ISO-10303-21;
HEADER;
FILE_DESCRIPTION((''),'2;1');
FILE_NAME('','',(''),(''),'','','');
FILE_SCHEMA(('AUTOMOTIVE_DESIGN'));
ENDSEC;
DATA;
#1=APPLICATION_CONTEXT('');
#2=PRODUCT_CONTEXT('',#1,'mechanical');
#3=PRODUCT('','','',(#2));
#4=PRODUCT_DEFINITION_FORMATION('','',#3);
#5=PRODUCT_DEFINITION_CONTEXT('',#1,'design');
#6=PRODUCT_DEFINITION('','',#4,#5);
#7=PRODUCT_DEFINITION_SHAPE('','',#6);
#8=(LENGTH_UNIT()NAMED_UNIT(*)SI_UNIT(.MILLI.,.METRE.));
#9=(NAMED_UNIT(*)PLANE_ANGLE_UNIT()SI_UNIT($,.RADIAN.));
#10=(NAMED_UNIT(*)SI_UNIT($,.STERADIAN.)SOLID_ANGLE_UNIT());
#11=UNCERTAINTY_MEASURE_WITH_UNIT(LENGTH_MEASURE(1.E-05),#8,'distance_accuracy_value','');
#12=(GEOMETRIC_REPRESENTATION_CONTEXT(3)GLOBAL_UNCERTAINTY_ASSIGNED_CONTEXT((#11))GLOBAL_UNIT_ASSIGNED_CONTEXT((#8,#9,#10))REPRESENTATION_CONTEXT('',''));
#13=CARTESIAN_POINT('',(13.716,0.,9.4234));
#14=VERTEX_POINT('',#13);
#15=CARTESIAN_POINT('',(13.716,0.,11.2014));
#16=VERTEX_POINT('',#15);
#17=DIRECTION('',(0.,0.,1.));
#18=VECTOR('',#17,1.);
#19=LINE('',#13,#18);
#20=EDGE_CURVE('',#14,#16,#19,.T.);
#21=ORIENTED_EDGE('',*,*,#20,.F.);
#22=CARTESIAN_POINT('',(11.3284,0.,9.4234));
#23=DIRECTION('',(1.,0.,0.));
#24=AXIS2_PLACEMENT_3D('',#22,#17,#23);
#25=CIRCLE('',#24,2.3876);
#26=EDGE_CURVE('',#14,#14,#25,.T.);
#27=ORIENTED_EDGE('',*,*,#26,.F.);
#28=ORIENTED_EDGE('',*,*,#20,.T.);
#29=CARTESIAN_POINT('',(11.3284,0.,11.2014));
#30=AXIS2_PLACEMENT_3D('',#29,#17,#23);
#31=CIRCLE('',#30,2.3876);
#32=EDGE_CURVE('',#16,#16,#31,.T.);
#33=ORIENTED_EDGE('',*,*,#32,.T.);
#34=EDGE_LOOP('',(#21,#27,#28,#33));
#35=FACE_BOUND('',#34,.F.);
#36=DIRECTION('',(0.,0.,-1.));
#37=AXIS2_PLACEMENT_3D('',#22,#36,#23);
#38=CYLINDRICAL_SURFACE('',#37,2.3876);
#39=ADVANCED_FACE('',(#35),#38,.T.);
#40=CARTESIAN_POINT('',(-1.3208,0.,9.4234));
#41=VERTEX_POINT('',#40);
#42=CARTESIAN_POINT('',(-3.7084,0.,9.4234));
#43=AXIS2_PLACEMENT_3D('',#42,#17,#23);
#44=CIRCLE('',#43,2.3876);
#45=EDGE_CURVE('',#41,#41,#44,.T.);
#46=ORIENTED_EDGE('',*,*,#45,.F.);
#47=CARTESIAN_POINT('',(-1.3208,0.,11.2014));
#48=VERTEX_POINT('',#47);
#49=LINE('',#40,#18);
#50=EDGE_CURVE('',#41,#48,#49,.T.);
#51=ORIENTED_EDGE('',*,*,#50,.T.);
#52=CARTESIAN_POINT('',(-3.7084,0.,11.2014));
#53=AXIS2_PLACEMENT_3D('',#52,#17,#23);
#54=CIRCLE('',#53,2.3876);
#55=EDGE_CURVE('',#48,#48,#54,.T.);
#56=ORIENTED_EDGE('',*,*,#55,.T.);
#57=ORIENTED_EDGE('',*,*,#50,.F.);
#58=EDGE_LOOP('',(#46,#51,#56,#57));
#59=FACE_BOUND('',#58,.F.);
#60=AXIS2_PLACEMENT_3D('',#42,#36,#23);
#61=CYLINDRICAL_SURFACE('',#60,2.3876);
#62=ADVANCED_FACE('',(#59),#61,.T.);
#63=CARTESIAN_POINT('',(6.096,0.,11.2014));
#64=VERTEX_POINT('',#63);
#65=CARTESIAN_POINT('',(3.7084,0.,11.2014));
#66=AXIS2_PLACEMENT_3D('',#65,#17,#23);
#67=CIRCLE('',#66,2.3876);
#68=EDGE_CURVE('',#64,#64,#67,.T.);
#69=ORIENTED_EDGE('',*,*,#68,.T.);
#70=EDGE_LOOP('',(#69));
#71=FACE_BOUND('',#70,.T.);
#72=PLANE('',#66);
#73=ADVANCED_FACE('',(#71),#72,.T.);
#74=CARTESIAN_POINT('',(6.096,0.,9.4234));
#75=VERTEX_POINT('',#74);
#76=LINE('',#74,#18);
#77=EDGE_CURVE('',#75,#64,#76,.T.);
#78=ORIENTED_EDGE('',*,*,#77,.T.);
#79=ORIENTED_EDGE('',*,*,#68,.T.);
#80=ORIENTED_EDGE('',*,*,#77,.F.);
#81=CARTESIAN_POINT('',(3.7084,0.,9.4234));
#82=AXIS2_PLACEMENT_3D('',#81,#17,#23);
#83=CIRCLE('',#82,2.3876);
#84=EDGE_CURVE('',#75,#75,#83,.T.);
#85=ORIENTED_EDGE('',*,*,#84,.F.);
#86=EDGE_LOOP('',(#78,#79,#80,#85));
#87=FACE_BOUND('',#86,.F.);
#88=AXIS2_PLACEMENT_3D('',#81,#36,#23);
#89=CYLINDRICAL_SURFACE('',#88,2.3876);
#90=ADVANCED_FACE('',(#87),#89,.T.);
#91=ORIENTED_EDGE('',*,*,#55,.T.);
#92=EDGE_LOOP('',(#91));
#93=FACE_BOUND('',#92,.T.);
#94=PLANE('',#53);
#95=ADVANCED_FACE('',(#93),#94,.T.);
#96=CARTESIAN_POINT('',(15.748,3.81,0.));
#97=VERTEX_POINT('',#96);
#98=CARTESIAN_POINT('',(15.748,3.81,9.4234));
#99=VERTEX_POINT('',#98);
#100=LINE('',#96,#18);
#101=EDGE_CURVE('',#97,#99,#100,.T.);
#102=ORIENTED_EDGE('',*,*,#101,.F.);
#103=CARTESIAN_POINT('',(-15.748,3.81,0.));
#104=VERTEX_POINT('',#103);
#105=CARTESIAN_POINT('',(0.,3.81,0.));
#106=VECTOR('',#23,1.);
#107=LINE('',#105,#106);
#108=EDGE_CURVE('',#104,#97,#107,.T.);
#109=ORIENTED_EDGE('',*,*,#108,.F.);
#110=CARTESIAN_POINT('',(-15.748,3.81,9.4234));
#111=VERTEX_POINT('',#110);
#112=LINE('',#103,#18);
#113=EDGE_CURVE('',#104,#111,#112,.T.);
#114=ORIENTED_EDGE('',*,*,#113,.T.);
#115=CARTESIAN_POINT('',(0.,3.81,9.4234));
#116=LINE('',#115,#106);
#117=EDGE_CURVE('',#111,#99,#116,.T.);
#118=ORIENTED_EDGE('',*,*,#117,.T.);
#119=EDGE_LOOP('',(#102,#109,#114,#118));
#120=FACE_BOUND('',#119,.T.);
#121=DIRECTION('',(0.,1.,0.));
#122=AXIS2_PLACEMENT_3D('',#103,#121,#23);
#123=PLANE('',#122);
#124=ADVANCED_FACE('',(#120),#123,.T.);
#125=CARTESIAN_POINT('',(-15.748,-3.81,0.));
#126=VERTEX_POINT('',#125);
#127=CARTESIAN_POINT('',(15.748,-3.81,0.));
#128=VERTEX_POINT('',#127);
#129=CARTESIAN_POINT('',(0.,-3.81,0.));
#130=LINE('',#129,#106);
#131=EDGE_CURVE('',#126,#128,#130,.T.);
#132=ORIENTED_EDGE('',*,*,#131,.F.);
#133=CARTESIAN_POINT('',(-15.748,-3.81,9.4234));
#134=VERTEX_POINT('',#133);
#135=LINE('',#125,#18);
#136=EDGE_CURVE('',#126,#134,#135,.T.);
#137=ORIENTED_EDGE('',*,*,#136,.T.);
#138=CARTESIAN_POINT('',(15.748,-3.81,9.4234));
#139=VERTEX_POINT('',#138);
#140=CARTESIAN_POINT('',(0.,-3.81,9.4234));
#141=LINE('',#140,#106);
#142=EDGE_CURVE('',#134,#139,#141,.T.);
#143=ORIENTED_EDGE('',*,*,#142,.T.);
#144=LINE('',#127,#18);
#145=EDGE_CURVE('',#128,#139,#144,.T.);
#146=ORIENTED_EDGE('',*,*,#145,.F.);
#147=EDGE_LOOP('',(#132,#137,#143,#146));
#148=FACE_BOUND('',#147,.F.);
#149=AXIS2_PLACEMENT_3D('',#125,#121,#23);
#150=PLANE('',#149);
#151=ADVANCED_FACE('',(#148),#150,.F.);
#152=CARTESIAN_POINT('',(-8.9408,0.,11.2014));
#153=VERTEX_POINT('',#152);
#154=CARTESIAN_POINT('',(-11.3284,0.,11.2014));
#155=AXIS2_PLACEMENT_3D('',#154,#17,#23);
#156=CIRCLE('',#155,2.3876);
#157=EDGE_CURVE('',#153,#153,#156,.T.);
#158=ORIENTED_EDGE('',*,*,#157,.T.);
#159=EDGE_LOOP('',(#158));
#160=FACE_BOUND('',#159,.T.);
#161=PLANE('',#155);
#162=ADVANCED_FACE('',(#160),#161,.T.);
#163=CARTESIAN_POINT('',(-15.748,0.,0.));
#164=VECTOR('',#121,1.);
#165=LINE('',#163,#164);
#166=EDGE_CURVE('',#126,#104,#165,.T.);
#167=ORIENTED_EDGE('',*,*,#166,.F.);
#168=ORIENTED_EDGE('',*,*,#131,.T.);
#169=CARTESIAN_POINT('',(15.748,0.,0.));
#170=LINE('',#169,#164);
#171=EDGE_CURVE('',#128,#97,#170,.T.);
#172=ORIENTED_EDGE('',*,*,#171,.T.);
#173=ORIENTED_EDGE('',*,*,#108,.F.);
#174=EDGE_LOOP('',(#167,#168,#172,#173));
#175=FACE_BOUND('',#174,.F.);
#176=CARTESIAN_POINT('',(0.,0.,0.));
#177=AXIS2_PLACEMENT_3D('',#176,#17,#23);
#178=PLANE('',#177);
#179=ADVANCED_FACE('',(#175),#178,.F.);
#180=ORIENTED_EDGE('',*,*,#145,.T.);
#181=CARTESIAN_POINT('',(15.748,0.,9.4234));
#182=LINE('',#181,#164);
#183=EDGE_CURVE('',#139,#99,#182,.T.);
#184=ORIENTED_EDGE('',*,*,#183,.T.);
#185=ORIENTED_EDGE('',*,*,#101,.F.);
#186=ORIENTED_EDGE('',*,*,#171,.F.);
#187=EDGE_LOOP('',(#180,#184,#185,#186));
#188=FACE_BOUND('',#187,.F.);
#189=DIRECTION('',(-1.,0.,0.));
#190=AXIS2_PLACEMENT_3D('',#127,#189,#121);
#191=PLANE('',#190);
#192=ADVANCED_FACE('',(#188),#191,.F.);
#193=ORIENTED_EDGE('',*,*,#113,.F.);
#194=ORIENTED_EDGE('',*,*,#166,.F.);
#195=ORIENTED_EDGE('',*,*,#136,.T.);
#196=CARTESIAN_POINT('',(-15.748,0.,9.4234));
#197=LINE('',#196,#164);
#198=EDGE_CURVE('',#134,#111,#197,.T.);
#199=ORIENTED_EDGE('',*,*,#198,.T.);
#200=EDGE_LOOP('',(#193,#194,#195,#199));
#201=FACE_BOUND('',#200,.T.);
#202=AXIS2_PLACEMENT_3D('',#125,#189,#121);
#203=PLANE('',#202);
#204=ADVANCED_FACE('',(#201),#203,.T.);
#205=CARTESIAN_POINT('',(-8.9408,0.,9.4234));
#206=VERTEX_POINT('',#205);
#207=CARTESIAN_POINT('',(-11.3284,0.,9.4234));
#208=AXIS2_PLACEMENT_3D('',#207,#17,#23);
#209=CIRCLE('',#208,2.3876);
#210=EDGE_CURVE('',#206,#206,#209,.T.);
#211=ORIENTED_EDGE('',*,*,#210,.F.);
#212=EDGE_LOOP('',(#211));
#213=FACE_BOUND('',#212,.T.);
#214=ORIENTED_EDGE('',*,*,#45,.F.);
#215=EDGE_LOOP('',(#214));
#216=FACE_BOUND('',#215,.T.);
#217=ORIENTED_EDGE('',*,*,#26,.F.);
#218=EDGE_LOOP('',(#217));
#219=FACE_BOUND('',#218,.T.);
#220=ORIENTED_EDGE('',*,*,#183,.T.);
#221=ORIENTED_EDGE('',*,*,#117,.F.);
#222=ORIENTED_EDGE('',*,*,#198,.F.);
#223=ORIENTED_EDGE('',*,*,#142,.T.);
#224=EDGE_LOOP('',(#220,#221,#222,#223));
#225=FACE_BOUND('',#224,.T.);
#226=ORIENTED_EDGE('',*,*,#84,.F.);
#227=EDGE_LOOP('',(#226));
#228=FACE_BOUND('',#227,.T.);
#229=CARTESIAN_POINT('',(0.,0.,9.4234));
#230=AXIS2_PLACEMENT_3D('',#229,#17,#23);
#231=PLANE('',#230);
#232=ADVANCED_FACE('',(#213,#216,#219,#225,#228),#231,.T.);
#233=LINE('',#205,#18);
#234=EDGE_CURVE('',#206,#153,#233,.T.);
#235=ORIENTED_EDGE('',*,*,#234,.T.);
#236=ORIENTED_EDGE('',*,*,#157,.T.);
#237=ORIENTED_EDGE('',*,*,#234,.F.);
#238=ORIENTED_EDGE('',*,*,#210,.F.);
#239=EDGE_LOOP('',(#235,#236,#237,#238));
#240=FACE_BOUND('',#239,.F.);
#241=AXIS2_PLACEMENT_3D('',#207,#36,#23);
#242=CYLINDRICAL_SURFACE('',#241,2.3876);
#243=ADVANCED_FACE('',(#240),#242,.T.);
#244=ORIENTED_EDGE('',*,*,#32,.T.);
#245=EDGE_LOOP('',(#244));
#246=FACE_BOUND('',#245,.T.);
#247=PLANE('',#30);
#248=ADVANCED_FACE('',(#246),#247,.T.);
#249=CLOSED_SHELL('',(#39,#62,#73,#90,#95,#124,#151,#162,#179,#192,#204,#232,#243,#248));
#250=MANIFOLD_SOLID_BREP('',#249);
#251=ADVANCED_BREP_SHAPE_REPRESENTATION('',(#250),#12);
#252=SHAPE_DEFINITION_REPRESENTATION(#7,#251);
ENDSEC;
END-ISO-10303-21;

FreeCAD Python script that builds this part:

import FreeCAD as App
import Part
import Sketcher
Q = App.Units.Quantity


def add_polygon(sketch, points):
    """Adds a closed chain of lines whose ends are joined by coincident constraints."""
    first, n = sketch.GeometryCount, len(points)
    for a, b in zip(points, points[1:] + points[:1]):
        sketch.addGeometry(Part.LineSegment(App.Vector(*a, 0), App.Vector(*b, 0)), False)
    for i in range(n):
        sketch.addConstraint(Sketcher.Constraint("Coincident", first + i, 2, first + (i + 1) % n, 1))

doc = App.newDocument("Part")
body = doc.addObject("PartDesign::Body", "Body")

sketch1 = body.newObject("Sketcher::SketchObject", "Sketch")
sketch1.AttachmentSupport = (doc.getObject("XY_Plane"), [""])
sketch1.MapMode = "FlatFace"
add_polygon(sketch1, [(-15.748, 3.81), (-15.748, -3.81), (15.748, -3.81), (15.748, 3.81)])
sketch1.addConstraint(Sketcher.Constraint("Vertical", 0))
sketch1.addConstraint(Sketcher.Constraint("Horizontal", 1))
sketch1.addConstraint(Sketcher.Constraint("Vertical", 2))
sketch1.addConstraint(Sketcher.Constraint("Horizontal", 3))
sketch1.addConstraint(Sketcher.Constraint("Symmetric", 0, 2, 2, 2, -1, 1))
sketch1.addConstraint(Sketcher.Constraint("DistanceY", 0, 2, 0, 1, Q("0.3 in")))
sketch1.addConstraint(Sketcher.Constraint("DistanceX", 1, 1, 1, 2, Q("1.24 in")))
pad1 = body.newObject("PartDesign::Pad", "Pad")
pad1.Profile = sketch1
pad1.Length = Q("0.371 in")

sketch2 = body.newObject("Sketcher::SketchObject", "Sketch001")
sketch2.AttachmentSupport = (doc.getObject("XY_Plane"), [""])
sketch2.MapMode = "FlatFace"
sketch2.AttachmentOffset = App.Placement(App.Vector(0, 0, 0.371 * 25.4), App.Rotation())
sketch2.addGeometry(Part.Circle(App.Vector(11.3284, 0, 0), App.Vector(0, 0, 1), 2.3876), False)
sketch2.addGeometry(Part.Circle(App.Vector(3.7084, 0, 0), App.Vector(0, 0, 1), 2.3876), False)
sketch2.addGeometry(Part.Circle(App.Vector(-3.7084, 0, 0), App.Vector(0, 0, 1), 2.3876), False)
sketch2.addGeometry(Part.Circle(App.Vector(-11.3284, 0, 0), App.Vector(0, 0, 1), 2.3876), False)
sketch2.addConstraint(Sketcher.Constraint("Equal", 0, 1))
sketch2.addConstraint(Sketcher.Constraint("Equal", 1, 2))
sketch2.addConstraint(Sketcher.Constraint("Equal", 2, 3))
sketch2.addConstraint(Sketcher.Constraint("Symmetric", 1, 3, 2, 3, -1, 1))
sketch2.addConstraint(Sketcher.Constraint("Symmetric", 0, 3, 3, 3, -1, 1))
sketch2.addConstraint(Sketcher.Constraint("PointOnObject", 0, 3, -1))
sketch2.addConstraint(Sketcher.Constraint("PointOnObject", 1, 3, -1))
sketch2.addConstraint(Sketcher.Constraint("Diameter", 0, Q("0.188 in")))
sketch2.addConstraint(Sketcher.Constraint("DistanceX", 1, 3, 0, 3, Q("0.3 in")))
sketch2.addConstraint(Sketcher.Constraint("DistanceX", -1, 1, 0, 3, Q("0.446 in")))
pad2 = body.newObject("PartDesign::Pad", "Pad001")
pad2.Profile = sketch2
pad2.Length = Q("0.07 in")

doc.recompute()
